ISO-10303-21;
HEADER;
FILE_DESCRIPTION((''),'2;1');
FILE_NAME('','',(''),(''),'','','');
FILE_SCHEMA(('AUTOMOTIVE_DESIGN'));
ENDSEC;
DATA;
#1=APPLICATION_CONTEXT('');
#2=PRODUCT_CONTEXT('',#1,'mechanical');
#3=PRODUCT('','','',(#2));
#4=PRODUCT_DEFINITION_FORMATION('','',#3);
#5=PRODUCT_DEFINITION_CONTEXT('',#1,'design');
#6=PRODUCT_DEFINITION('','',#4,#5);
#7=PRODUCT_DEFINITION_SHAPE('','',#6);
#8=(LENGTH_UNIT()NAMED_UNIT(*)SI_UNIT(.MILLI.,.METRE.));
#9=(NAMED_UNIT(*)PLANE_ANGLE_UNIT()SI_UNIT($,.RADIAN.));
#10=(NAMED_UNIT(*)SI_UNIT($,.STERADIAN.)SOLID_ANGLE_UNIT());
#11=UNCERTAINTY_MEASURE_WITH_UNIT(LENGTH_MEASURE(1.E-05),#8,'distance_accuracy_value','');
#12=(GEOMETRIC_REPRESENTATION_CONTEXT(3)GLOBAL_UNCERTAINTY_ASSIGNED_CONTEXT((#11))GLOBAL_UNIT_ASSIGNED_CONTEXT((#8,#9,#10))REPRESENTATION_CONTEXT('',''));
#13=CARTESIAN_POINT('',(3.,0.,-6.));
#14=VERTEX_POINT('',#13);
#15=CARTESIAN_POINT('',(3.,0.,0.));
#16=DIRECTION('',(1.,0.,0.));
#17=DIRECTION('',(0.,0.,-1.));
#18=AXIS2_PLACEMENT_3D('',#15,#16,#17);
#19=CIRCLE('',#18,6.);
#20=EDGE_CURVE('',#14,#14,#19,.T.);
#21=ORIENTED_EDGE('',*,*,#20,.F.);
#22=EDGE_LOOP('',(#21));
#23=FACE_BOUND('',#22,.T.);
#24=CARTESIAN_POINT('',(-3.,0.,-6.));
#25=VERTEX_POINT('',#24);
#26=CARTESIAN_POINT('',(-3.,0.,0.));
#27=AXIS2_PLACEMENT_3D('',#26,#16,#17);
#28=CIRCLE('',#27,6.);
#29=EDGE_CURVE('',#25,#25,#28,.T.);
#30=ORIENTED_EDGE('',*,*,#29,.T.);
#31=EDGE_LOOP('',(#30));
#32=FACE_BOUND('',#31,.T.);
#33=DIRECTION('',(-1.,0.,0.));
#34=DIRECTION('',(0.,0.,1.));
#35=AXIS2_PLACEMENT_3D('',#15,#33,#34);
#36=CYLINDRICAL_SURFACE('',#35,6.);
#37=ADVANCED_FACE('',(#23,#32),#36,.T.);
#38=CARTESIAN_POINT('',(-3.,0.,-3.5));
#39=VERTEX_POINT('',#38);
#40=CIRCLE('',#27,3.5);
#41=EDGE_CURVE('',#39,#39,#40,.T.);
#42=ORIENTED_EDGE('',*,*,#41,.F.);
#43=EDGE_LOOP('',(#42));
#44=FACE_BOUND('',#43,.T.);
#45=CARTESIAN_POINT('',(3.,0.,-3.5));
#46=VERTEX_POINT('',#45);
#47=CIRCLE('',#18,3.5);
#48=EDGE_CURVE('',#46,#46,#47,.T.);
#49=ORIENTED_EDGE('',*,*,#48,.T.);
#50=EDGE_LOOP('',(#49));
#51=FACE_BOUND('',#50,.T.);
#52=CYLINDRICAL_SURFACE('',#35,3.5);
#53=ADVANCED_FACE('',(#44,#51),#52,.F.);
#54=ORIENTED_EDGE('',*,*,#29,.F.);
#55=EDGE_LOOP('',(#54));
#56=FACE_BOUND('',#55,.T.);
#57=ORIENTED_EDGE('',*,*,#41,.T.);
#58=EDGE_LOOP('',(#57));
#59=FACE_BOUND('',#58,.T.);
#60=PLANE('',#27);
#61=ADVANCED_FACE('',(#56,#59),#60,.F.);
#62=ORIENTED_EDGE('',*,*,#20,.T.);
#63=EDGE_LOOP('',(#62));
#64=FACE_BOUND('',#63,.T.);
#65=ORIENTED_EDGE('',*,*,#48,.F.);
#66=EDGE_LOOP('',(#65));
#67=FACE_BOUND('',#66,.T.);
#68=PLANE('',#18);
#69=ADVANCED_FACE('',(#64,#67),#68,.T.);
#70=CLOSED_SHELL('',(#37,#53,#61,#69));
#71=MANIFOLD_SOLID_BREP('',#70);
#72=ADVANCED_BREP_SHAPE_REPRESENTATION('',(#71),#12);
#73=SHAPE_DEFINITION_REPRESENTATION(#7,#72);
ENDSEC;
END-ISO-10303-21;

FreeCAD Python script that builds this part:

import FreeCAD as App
import Part
import Sketcher

doc = App.newDocument("Part")
body = doc.addObject("PartDesign::Body", "Body")

sketch1 = body.newObject("Sketcher::SketchObject", "Sketch")
sketch1.AttachmentSupport = (doc.getObject("YZ_Plane"), [""])
sketch1.MapMode = "FlatFace"
sketch1.addGeometry([
    Part.Circle(App.Vector(0, 0, 0), App.Vector(0, 0, 1), 6),
    Part.Circle(App.Vector(0, 0, 0), App.Vector(0, 0, 1), 3.5),
], False)
sketch1.addConstraint([
    Sketcher.Constraint("Coincident", 0, 3, -1, 1),
    Sketcher.Constraint("Coincident", 1, 3, -1, 1),
    Sketcher.Constraint("Diameter", 0, 12.0),
    Sketcher.Constraint("Diameter", 1, 7.0),
])
pad1 = body.newObject("PartDesign::Pad", "Pad")
pad1.Profile = sketch1
pad1.Length = 6
pad1.Midplane = True

doc.recompute()
